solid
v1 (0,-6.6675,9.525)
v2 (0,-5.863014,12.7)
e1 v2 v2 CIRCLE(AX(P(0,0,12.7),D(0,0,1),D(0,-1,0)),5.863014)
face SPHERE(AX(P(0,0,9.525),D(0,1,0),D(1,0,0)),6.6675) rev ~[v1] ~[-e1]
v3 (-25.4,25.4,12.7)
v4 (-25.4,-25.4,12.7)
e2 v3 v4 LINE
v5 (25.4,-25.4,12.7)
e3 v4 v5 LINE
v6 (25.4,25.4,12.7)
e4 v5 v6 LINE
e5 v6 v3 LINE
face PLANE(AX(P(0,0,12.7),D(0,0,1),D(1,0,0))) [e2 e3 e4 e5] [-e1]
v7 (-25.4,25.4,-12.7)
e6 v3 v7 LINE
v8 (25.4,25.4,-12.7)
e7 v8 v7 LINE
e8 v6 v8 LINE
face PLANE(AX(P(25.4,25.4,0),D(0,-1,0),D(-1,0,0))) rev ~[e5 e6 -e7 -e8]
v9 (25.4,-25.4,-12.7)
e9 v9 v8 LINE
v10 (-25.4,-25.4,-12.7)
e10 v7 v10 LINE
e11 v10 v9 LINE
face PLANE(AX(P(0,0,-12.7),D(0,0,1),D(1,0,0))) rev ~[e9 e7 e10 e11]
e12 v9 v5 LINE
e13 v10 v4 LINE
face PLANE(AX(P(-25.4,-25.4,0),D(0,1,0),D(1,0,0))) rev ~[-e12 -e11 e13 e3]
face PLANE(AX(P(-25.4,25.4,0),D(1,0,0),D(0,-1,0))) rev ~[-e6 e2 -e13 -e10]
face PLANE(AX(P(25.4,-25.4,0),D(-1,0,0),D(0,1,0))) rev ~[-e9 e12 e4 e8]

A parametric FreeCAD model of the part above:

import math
import FreeCAD as App
import Part
import Sketcher
Q = App.Units.Quantity


def add_polygon(sketch, points):
    """Adds a closed chain of lines whose ends are joined by coincident constraints."""
    first, n = sketch.GeometryCount, len(points)
    for a, b in zip(points, points[1:] + points[:1]):
        sketch.addGeometry(Part.LineSegment(App.Vector(*a, 0), App.Vector(*b, 0)), False)
    for i in range(n):
        sketch.addConstraint(Sketcher.Constraint("Coincident", first + i, 2, first + (i + 1) % n, 1))

doc = App.newDocument("Part")
body = doc.addObject("PartDesign::Body", "Body")

sketch1 = body.newObject("Sketcher::SketchObject", "Sketch")
sketch1.AttachmentSupport = (doc.getObject("XY_Plane"), [""])
sketch1.MapMode = "FlatFace"
add_polygon(sketch1, [(-25, 25), (-25, -25), (25, -25), (25, 25)])
sketch1.addConstraint(Sketcher.Constraint("Vertical", 0))
sketch1.addConstraint(Sketcher.Constraint("Horizontal", 1))
sketch1.addConstraint(Sketcher.Constraint("Vertical", 2))
sketch1.addConstraint(Sketcher.Constraint("Horizontal", 3))
sketch1.addConstraint(Sketcher.Constraint("Symmetric", 0, 2, 2, 2, -1, 1))
sketch1.addConstraint(Sketcher.Constraint("Equal", 3, 0))
sketch1.addConstraint(Sketcher.Constraint("DistanceX", 1, 1, 1, 2, Q("2 in")))
pad1 = body.newObject("PartDesign::Pad", "Pad")
pad1.Profile = sketch1
pad1.Length = Q("1 in")
pad1.Midplane = True

sketch2 = body.newObject("Sketcher::SketchObject", "Sketch001")
sketch2.AttachmentSupport = (doc.getObject("XY_Plane"), [""])
sketch2.MapMode = "FlatFace"
sketch2.AttachmentOffset = App.Placement(App.Vector(0, 0, 0.375 * 25.4), App.Rotation())
sketch2.addGeometry(Part.LineSegment(App.Vector(0, 7, 0), App.Vector(0, -7, 0)), False)
sketch2.addGeometry(Part.ArcOfCircle(Part.Circle(App.Vector(0, 0, 0), App.Vector(0, 0, 1), 7), math.radians(-90), math.radians(90)), False)
sketch2.addConstraint(Sketcher.Constraint("Coincident", 0, 1, 1, 2))
sketch2.addConstraint(Sketcher.Constraint("Coincident", 1, 1, 0, 2))
sketch2.addConstraint(Sketcher.Constraint("Vertical", 0))
sketch2.addConstraint(Sketcher.Constraint("Coincident", 1, 3, -1, 1))
sketch2.addConstraint(Sketcher.Constraint("PointOnObject", 0, 1, -2))
sketch2.addConstraint(Sketcher.Constraint("Radius", 1, Q("0.2625 in")))
groove = body.newObject("PartDesign::Groove", "Groove")
groove.Profile = sketch2
groove.ReferenceAxis = (sketch2, ["V_Axis"])
groove.Angle = 360

doc.recompute()
